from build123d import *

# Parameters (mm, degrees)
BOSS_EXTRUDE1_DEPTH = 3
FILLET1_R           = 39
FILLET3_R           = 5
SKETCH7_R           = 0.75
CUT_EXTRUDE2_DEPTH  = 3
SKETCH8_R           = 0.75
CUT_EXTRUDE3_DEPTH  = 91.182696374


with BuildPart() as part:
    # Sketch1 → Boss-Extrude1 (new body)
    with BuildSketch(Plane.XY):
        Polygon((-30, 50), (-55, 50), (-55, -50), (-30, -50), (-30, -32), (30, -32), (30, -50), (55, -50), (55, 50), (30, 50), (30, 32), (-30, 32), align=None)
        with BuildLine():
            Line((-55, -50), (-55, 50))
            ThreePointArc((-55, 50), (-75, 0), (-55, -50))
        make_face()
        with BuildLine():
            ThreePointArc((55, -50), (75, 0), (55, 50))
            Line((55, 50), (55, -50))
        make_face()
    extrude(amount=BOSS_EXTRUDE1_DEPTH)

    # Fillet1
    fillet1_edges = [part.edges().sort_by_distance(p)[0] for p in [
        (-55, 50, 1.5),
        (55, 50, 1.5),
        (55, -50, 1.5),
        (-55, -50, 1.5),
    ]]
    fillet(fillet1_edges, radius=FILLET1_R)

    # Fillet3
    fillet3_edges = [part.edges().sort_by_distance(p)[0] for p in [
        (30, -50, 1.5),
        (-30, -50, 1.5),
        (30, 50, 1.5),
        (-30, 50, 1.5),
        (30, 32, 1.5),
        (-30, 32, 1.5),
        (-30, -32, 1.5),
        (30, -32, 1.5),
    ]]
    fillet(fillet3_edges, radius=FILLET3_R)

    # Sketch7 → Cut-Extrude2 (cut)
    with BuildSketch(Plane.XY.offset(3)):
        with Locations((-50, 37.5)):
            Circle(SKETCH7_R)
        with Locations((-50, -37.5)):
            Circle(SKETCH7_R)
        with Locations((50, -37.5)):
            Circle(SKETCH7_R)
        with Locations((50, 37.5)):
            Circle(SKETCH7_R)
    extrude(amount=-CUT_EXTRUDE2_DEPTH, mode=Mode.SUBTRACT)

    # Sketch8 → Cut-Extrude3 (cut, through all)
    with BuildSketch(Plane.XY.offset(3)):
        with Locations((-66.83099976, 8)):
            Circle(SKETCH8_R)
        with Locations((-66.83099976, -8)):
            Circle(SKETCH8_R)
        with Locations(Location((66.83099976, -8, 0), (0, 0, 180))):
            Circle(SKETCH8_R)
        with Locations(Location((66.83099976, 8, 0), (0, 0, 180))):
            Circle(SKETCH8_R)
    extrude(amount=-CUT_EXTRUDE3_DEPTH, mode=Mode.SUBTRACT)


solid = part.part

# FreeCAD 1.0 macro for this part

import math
import FreeCAD as App
import Part
import Sketcher


def edges_at(feature, points):
    """Names of the edges that pass closest to the given points."""
    edges = feature.Shape.Edges
    near = lambda p: min(range(len(edges)), key=lambda i: edges[i].distToShape(Part.Vertex(*p))[0])
    return sorted({f"Edge{near(p) + 1}" for p in points})

doc = App.newDocument("Part")
body = doc.addObject("PartDesign::Body", "Body")

# Sketch on XY plane
sketch1 = doc.addObject("Sketcher::SketchObject", "Sketch")
body.addObject(sketch1)
sketch1.AttachmentSupport = (doc.XY_Plane, [""])
sketch1.MapMode = "FlatFace"
sketch1.addGeometry([
    Part.LineSegment(App.Vector(-30, 50, 0), App.Vector(-55, 50, 0)),  # 0
    Part.ArcOfCircle(Part.Circle(App.Vector(-2, 0, 0), App.Vector(0, 0, 1), 72), math.radians(136), math.radians(224)),  # 1
    Part.LineSegment(App.Vector(-55, -50, 0), App.Vector(-30, -50, 0)),  # 2
    Part.LineSegment(App.Vector(-30, -50, 0), App.Vector(-30, -32, 0)),  # 3
    Part.LineSegment(App.Vector(-30, -32, 0), App.Vector(30, -32, 0)),  # 4
    Part.LineSegment(App.Vector(30, -32, 0), App.Vector(30, -50, 0)),  # 5
    Part.LineSegment(App.Vector(30, -50, 0), App.Vector(55, -50, 0)),  # 6
    Part.ArcOfCircle(Part.Circle(App.Vector(2, 0, 0), App.Vector(0, 0, 1), 72), math.radians(-44), math.radians(44)),  # 7
    Part.LineSegment(App.Vector(55, 50, 0), App.Vector(30, 50, 0)),  # 8
    Part.LineSegment(App.Vector(30, 50, 0), App.Vector(30, 32, 0)),  # 9
    Part.LineSegment(App.Vector(30, 32, 0), App.Vector(-30, 32, 0)),  # 10
    Part.LineSegment(App.Vector(-30, 32, 0), App.Vector(-30, 50, 0)),  # 11
], False)
sketch1.addConstraint([
    Sketcher.Constraint("Coincident", 0, 2, 1, 1),
    Sketcher.Constraint("Coincident", 1, 2, 2, 1),
    Sketcher.Constraint("Coincident", 2, 2, 3, 1),
    Sketcher.Constraint("Coincident", 3, 2, 4, 1),
    Sketcher.Constraint("Coincident", 4, 2, 5, 1),
    Sketcher.Constraint("Coincident", 5, 2, 6, 1),
    Sketcher.Constraint("Coincident", 6, 2, 7, 1),
    Sketcher.Constraint("Coincident", 7, 2, 8, 1),
    Sketcher.Constraint("Coincident", 8, 2, 9, 1),
    Sketcher.Constraint("Coincident", 9, 2, 10, 1),
    Sketcher.Constraint("Coincident", 10, 2, 11, 1),
    Sketcher.Constraint("Coincident", 11, 2, 0, 1),
    Sketcher.Constraint("Horizontal", 0),
    Sketcher.Constraint("Horizontal", 2),
    Sketcher.Constraint("Vertical", 3),
    Sketcher.Constraint("Horizontal", 4),
    Sketcher.Constraint("Vertical", 5),
    Sketcher.Constraint("Horizontal", 6),
    Sketcher.Constraint("Horizontal", 8),
    Sketcher.Constraint("Vertical", 9),
    Sketcher.Constraint("Horizontal", 10),
    Sketcher.Constraint("Vertical", 11),
    Sketcher.Constraint("Equal", 1, 7),
    Sketcher.Constraint("Symmetric", 1, 3, 7, 3, -1, 1),
    Sketcher.Constraint("Symmetric", 2, 2, 8, 2, -1, 1),
    Sketcher.Constraint("Symmetric", 4, 2, 10, 2, -1, 1),
    Sketcher.Constraint("Symmetric", 2, 2, 5, 2, -2),
    Sketcher.Constraint("Symmetric", 0, 2, 7, 2, -2),
    Sketcher.Constraint("Radius", 1, 72.5),
    Sketcher.Constraint("DistanceX", 0, 2, 0, 1, 25.0),
    Sketcher.Constraint("DistanceX", 4, 1, 4, 2, 60.0),
    Sketcher.Constraint("DistanceY", 3, 1, 3, 2, 18.0),
    Sketcher.Constraint("DistanceY", -1, 1, 0, 2, 50.0),
])
pad1 = doc.addObject("PartDesign::Pad", "Pad")
body.addObject(pad1)
pad1.Profile = sketch1
pad1.Length = 3
doc.recompute()

fillet = doc.addObject("PartDesign::Fillet", "Fillet")
body.addObject(fillet)
fillet.Base = (pad1, edges_at(pad1, [
    (-55, 50, 1.5),
    (55, 50, 1.5),
    (55, -50, 1.5),
    (-55, -50, 1.5),
]))
fillet.Radius = 39
doc.recompute()

fillet2 = doc.addObject("PartDesign::Fillet", "Fillet001")
body.addObject(fillet2)
fillet2.Base = (fillet, edges_at(fillet, [
    (30, -50, 1.5),
    (-30, -50, 1.5),
    (30, 50, 1.5),
    (-30, 50, 1.5),
    (30, 32, 1.5),
    (-30, 32, 1.5),
    (-30, -32, 1.5),
    (30, -32, 1.5),
]))
fillet2.Radius = 5

# Sketch on XY plane
sketch2 = doc.addObject("Sketcher::SketchObject", "Sketch001")
body.addObject(sketch2)
sketch2.AttachmentSupport = (doc.XY_Plane, [""])
sketch2.MapMode = "FlatFace"
sketch2.AttachmentOffset = App.Placement(App.Vector(0, 0, 3), App.Rotation())
sketch2.addGeometry([
    Part.Circle(App.Vector(-50, 37.5, 0), App.Vector(0, 0, 1), 0.8),
    Part.Circle(App.Vector(-50, -37.5, 0), App.Vector(0, 0, 1), 0.8),
    Part.Circle(App.Vector(50, -37.5, 0), App.Vector(0, 0, 1), 0.8),
    Part.Circle(App.Vector(50, 37.5, 0), App.Vector(0, 0, 1), 0.8),
], False)
sketch2.addConstraint([
    Sketcher.Constraint("Equal", 0, 1),
    Sketcher.Constraint("Equal", 1, 2),
    Sketcher.Constraint("Equal", 2, 3),
    Sketcher.Constraint("Symmetric", 0, 3, 2, 3, -1, 1),
    Sketcher.Constraint("Symmetric", 1, 3, 3, 3, -1, 1),
    Sketcher.Constraint("Symmetric", 1, 3, 2, 3, -2),
    Sketcher.Constraint("Diameter", 0, 1.5),
    Sketcher.Constraint("DistanceX", 0, 3, -1, 1, 50.0),
    Sketcher.Constraint("DistanceY", 1, 3, 0, 3, 75.0),
])
pocket1 = doc.addObject("PartDesign::Pocket", "Pocket")
body.addObject(pocket1)
pocket1.Profile = sketch2
pocket1.Length = 3

# Sketch on XY plane
sketch3 = doc.addObject("Sketcher::SketchObject", "Sketch002")
body.addObject(sketch3)
sketch3.AttachmentSupport = (doc.XY_Plane, [""])
sketch3.MapMode = "FlatFace"
sketch3.AttachmentOffset = App.Placement(App.Vector(0, 0, 3), App.Rotation())
sketch3.addGeometry([
    Part.Circle(App.Vector(-66.8, 8, 0), App.Vector(0, 0, 1), 0.8),
    Part.Circle(App.Vector(-66.8, -8, 0), App.Vector(0, 0, 1), 0.8),
    Part.Circle(App.Vector(66.8, -8, 0), App.Vector(0, 0, 1), 0.8),
    Part.Circle(App.Vector(66.8, 8, 0), App.Vector(0, 0, 1), 0.8),
], False)
sketch3.addConstraint([
    Sketcher.Constraint("Equal", 0, 1),
    Sketcher.Constraint("Equal", 1, 2),
    Sketcher.Constraint("Equal", 2, 3),
    Sketcher.Constraint("Symmetric", 0, 3, 2, 3, -1, 1),
    Sketcher.Constraint("Symmetric", 1, 3, 3, 3, -1, 1),
    Sketcher.Constraint("Symmetric", 1, 3, 2, 3, -2),
    Sketcher.Constraint("Diameter", 0, 1.5),
    Sketcher.Constraint("DistanceY", -1, 1, 0, 3, 8.0),
    Sketcher.Constraint("DistanceX", 0, 3, -1, 1, 66.831),
])
pocket2 = doc.addObject("PartDesign::Pocket", "Pocket001")
body.addObject(pocket2)
pocket2.Profile = sketch3
pocket2.Type = "ThroughAll"

doc.recompute()
